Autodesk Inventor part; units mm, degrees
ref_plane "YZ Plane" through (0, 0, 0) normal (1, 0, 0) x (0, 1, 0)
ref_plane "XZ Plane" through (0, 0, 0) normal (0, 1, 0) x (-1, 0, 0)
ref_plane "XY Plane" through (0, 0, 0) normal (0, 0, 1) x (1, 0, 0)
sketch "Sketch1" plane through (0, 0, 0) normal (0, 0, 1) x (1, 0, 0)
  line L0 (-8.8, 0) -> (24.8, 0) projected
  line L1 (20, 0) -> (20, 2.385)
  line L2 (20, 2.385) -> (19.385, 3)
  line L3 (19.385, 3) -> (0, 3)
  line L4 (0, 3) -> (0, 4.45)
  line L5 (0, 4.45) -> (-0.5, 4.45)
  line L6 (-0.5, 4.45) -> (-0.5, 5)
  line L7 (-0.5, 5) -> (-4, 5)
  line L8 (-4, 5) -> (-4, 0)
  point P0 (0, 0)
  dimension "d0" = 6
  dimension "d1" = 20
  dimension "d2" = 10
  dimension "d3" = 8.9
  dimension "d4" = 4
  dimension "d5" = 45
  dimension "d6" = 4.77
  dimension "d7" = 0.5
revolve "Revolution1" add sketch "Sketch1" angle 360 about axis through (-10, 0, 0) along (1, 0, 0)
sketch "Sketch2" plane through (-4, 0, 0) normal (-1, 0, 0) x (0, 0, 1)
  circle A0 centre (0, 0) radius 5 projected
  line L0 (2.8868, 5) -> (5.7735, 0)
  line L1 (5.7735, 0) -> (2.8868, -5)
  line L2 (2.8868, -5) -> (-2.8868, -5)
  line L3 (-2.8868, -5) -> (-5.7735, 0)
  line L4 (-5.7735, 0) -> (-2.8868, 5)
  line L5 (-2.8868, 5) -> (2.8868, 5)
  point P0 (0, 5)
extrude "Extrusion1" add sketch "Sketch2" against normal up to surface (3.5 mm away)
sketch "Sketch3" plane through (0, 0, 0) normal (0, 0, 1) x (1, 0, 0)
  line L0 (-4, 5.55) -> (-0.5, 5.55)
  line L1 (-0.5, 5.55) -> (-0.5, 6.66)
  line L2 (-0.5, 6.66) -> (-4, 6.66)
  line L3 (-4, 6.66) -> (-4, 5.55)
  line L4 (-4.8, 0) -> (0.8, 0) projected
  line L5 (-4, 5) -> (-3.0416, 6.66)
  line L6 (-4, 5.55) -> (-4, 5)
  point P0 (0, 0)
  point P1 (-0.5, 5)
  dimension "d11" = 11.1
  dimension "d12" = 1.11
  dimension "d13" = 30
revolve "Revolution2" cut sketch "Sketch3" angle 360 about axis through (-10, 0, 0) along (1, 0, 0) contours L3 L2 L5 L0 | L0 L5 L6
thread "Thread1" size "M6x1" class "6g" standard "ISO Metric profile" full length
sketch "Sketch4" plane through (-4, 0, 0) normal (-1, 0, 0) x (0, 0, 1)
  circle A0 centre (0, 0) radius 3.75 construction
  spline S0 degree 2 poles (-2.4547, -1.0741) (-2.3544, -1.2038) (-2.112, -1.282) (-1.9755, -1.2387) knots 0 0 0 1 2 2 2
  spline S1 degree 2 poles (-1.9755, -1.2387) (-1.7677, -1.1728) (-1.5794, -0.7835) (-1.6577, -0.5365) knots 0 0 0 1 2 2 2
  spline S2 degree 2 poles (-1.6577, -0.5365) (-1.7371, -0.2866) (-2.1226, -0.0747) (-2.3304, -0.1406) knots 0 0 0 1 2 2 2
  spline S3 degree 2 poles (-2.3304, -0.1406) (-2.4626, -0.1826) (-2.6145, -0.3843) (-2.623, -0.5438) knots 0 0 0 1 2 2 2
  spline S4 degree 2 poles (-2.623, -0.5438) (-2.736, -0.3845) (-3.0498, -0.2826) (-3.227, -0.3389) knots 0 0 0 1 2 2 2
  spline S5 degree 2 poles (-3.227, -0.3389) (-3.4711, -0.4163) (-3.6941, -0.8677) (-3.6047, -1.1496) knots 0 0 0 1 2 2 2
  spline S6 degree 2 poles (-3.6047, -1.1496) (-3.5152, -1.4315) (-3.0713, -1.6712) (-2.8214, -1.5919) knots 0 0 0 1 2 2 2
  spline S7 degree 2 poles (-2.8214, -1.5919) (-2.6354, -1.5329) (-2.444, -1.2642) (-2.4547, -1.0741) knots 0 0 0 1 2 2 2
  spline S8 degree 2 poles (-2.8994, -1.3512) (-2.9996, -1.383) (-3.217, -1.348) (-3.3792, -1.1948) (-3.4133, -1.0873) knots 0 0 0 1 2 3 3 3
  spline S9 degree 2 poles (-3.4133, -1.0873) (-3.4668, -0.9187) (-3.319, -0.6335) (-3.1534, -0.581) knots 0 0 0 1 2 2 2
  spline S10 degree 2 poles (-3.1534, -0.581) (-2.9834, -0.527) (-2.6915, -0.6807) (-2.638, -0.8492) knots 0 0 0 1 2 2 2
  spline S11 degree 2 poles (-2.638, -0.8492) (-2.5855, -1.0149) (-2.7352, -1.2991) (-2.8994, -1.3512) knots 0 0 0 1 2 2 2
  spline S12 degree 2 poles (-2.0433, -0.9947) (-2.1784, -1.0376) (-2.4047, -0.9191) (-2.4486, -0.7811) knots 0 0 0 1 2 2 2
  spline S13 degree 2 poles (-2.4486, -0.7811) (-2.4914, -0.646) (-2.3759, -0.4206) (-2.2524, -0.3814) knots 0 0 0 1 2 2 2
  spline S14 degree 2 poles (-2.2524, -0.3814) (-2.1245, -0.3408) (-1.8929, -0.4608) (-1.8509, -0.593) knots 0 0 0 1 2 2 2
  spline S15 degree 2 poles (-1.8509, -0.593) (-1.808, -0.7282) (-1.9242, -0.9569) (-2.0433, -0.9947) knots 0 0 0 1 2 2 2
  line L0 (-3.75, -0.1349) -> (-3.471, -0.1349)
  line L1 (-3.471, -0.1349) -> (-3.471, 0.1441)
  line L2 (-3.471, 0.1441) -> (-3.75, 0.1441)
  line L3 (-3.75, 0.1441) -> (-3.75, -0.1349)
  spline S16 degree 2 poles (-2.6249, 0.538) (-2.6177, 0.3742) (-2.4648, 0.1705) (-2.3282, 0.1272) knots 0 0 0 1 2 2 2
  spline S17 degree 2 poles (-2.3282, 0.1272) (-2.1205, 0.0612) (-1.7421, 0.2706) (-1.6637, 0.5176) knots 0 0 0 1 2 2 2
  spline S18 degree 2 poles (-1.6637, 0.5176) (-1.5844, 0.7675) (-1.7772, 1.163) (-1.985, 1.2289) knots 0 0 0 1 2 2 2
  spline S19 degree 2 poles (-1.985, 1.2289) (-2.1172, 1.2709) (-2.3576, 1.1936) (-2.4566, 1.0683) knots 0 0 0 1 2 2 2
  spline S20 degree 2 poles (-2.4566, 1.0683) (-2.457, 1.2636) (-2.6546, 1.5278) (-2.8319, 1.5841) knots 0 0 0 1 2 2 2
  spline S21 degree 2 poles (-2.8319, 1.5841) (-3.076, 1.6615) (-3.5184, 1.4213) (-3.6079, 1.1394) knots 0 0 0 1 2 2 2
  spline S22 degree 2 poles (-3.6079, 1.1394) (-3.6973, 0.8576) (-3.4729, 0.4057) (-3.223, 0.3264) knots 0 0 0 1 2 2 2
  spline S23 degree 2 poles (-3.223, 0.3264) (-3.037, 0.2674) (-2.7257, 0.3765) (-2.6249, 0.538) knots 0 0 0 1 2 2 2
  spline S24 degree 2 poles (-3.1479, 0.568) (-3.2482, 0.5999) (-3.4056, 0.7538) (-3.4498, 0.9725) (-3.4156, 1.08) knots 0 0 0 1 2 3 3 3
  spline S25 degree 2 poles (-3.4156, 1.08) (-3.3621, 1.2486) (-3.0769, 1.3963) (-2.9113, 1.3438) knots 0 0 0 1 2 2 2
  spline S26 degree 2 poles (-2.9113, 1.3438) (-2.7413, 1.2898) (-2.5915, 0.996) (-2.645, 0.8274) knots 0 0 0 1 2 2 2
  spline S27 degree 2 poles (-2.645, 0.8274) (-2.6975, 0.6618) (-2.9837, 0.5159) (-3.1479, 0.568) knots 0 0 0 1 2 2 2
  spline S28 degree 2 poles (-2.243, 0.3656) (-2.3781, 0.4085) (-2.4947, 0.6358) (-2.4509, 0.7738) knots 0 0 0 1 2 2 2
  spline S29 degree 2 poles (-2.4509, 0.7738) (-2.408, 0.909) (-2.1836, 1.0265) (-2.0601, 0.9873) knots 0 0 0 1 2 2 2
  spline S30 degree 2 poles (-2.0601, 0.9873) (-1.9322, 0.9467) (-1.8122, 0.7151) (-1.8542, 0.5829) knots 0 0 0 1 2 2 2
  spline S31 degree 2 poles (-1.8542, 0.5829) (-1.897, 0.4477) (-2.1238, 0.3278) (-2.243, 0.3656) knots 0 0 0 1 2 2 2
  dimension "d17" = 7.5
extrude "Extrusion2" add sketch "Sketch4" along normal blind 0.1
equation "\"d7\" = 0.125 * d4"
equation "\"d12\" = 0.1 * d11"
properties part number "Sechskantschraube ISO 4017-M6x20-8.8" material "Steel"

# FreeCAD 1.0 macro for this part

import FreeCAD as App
import Part
import Sketcher
from FreeCAD import Vector
Q = App.Units.Quantity

doc = App.newDocument("Part")
body = doc.addObject("PartDesign::Body", "Body")

# Sketch on XY plane
sketch1 = doc.addObject("Sketcher::SketchObject", "Sketch")
body.addObject(sketch1)
sketch1.AttachmentSupport = (doc.XY_Plane, [""])
sketch1.MapMode = "FlatFace"
sketch1.addGeometry(Part.LineSegment(Vector(-4, 5, 0), Vector(-4, 0, 0)), False)
sketch1.addGeometry(Part.LineSegment(Vector(-4, 0, 0), Vector(20, 0, 0)), False)
sketch1.addGeometry(Part.LineSegment(Vector(20, 0, 0), Vector(20, 2.385, 0)), False)
sketch1.addGeometry(Part.LineSegment(Vector(20, 2.385, 0), Vector(19.385, 3, 0)), False)
sketch1.addGeometry(Part.LineSegment(Vector(19.385, 3, 0), Vector(0, 3, 0)), False)
sketch1.addGeometry(Part.LineSegment(Vector(0, 3, 0), Vector(0, 4.45, 0)), False)
sketch1.addGeometry(Part.LineSegment(Vector(0, 4.45, 0), Vector(-0.5, 4.45, 0)), False)
sketch1.addGeometry(Part.LineSegment(Vector(-0.5, 4.45, 0), Vector(-0.5, 5, 0)), False)
sketch1.addGeometry(Part.LineSegment(Vector(-0.5, 5, 0), Vector(-4, 5, 0)), False)
sketch1.addConstraint(Sketcher.Constraint("Coincident", 0, 2, 1, 1))
sketch1.addConstraint(Sketcher.Constraint("Coincident", 1, 2, 2, 1))
sketch1.addConstraint(Sketcher.Constraint("Coincident", 2, 2, 3, 1))
sketch1.addConstraint(Sketcher.Constraint("Coincident", 3, 2, 4, 1))
sketch1.addConstraint(Sketcher.Constraint("Coincident", 4, 2, 5, 1))
sketch1.addConstraint(Sketcher.Constraint("Coincident", 5, 2, 6, 1))
sketch1.addConstraint(Sketcher.Constraint("Coincident", 6, 2, 7, 1))
sketch1.addConstraint(Sketcher.Constraint("Coincident", 7, 2, 8, 1))
sketch1.addConstraint(Sketcher.Constraint("Coincident", 8, 2, 0, 1))
sketch1.addConstraint(Sketcher.Constraint("Vertical", 0))
sketch1.addConstraint(Sketcher.Constraint("Horizontal", 1))
sketch1.addConstraint(Sketcher.Constraint("Vertical", 2))
sketch1.addConstraint(Sketcher.Constraint("Horizontal", 4))
sketch1.addConstraint(Sketcher.Constraint("Vertical", 5))
sketch1.addConstraint(Sketcher.Constraint("Horizontal", 6))
sketch1.addConstraint(Sketcher.Constraint("Vertical", 7))
sketch1.addConstraint(Sketcher.Constraint("Horizontal", 8))
sketch1.addConstraint(Sketcher.Constraint("PointOnObject", 0, 2, -1))
sketch1.addConstraint(Sketcher.Constraint("PointOnObject", 4, 2, -2))
sketch1.addConstraint(Sketcher.Constraint("DistanceX", 6, 2, 6, 1, 0.5))
sketch1.addConstraint(Sketcher.Constraint("DistanceX", 0, 2, -1, 1, 4.0))
sketch1.addConstraint(Sketcher.Constraint("DistanceX", -1, 1, 1, 2, 20.0))
sketch1.addConstraint(Sketcher.Constraint("DistanceY", 0, 2, 0, 1, 5.0))
sketch1.addConstraint(Sketcher.Constraint("Angle", 3, Q("135 deg")))
sketch1.addConstraint(Sketcher.Constraint("DistanceY", -1, 1, 3, 2, 3.0))
sketch1.addConstraint(Sketcher.Constraint("DistanceY", 5, 1, 5, 2, 1.45))
sketch1.addConstraint(Sketcher.Constraint("DistanceX", 4, 2, 4, 1, 19.385))
revolution = doc.addObject("PartDesign::Revolution", "Revolution")
body.addObject(revolution)
revolution.Profile = sketch1
revolution.ReferenceAxis = (sketch1, ["H_Axis"])
revolution.Angle = 360

# Sketch on YZ plane
sketch2 = doc.addObject("Sketcher::SketchObject", "Sketch001")
body.addObject(sketch2)
sketch2.AttachmentSupport = (doc.YZ_Plane, [""])
sketch2.MapMode = "FlatFace"
sketch2.AttachmentOffset = App.Placement(Vector(0, 0, -4), App.Rotation())
sketch2.addGeometry(Part.LineSegment(Vector(0, 5.7735, 0), Vector(5, 2.8868, 0)), False)
sketch2.addGeometry(Part.LineSegment(Vector(5, 2.8868, 0), Vector(5, -2.8868, 0)), False)
sketch2.addGeometry(Part.LineSegment(Vector(5, -2.8868, 0), Vector(0, -5.7735, 0)), False)
sketch2.addGeometry(Part.LineSegment(Vector(0, -5.7735, 0), Vector(-5, -2.8868, 0)), False)
sketch2.addGeometry(Part.LineSegment(Vector(-5, -2.8868, 0), Vector(-5, 2.8868, 0)), False)
sketch2.addGeometry(Part.LineSegment(Vector(-5, 2.8868, 0), Vector(0, 5.7735, 0)), False)
sketch2.addConstraint(Sketcher.Constraint("Coincident", 0, 2, 1, 1))
sketch2.addConstraint(Sketcher.Constraint("Coincident", 1, 2, 2, 1))
sketch2.addConstraint(Sketcher.Constraint("Coincident", 2, 2, 3, 1))
sketch2.addConstraint(Sketcher.Constraint("Coincident", 3, 2, 4, 1))
sketch2.addConstraint(Sketcher.Constraint("Coincident", 4, 2, 5, 1))
sketch2.addConstraint(Sketcher.Constraint("Coincident", 5, 2, 0, 1))
sketch2.addConstraint(Sketcher.Constraint("Vertical", 1))
sketch2.addConstraint(Sketcher.Constraint("Vertical", 4))
sketch2.addConstraint(Sketcher.Constraint("Symmetric", 0, 2, 3, 2, -1, 1))
sketch2.addConstraint(Sketcher.Constraint("Symmetric", 2, 2, 5, 2, -1, 1))
sketch2.addConstraint(Sketcher.Constraint("PointOnObject", 2, 2, -2))
sketch2.addConstraint(Sketcher.Constraint("Parallel", 2, 5))
sketch2.addConstraint(Sketcher.Constraint("Horizontal", 1, 2, 3, 2))
sketch2.addConstraint(Sketcher.Constraint("Angle", 0, Q("-29.9996 deg")))
sketch2.addConstraint(Sketcher.Constraint("DistanceX", -1, 1, 0, 2, 5.0))
sketch2.addConstraint(Sketcher.Constraint("DistanceY", 1, 2, 1, 1, 5.7736))
pad1 = doc.addObject("PartDesign::Pad", "Pad")
body.addObject(pad1)
pad1.Profile = sketch2
pad1.Length = 3.5

# Sketch on XY plane
sketch3 = doc.addObject("Sketcher::SketchObject", "Sketch002")
body.addObject(sketch3)
sketch3.AttachmentSupport = (doc.XY_Plane, [""])
sketch3.MapMode = "FlatFace"
sketch3.addGeometry(Part.LineSegment(Vector(-4, 6.66, 0), Vector(-4, 5, 0)), False)
sketch3.addGeometry(Part.LineSegment(Vector(-4, 5, 0), Vector(-3.0416, 6.66, 0)), False)
sketch3.addGeometry(Part.LineSegment(Vector(-3.0416, 6.66, 0), Vector(-4, 6.66, 0)), False)
sketch3.addConstraint(Sketcher.Constraint("Coincident", 0, 2, 1, 1))
sketch3.addConstraint(Sketcher.Constraint("Coincident", 1, 2, 2, 1))
sketch3.addConstraint(Sketcher.Constraint("Coincident", 2, 2, 0, 1))
sketch3.addConstraint(Sketcher.Constraint("Vertical", 0))
sketch3.addConstraint(Sketcher.Constraint("Horizontal", 2))
sketch3.addConstraint(Sketcher.Constraint("Angle", 1, Q("60 deg")))
sketch3.addConstraint(Sketcher.Constraint("DistanceX", 0, 2, -1, 1, 4.0))
sketch3.addConstraint(Sketcher.Constraint("DistanceY", -1, 1, 0, 2, 5.0))
sketch3.addConstraint(Sketcher.Constraint("DistanceY", 0, 2, 0, 1, 1.66))
groove = doc.addObject("PartDesign::Groove", "Groove")
body.addObject(groove)
groove.Profile = sketch3
groove.ReferenceAxis = (sketch3, ["H_Axis"])
groove.Angle = 360

# Sketch on YZ plane
sketch4 = doc.addObject("Sketcher::SketchObject", "Sketch003")
body.addObject(sketch4)
sketch4.AttachmentSupport = (doc.YZ_Plane, [""])
sketch4.MapMode = "FlatFace"
sketch4.AttachmentOffset = App.Placement(Vector(0, 0, -4), App.Rotation())
sketch4.addGeometry(Part.BSplineCurve([Vector(-1.5919, -2.8214, 0), Vector(-1.5329, -2.6354, 0), Vector(-1.2642, -2.444, 0), Vector(-1.0741, -2.4547, 0)], [3, 1, 3], [0, 1, 2], False, 2, [1, 1, 1, 1], False), False)
sketch4.addGeometry(Part.BSplineCurve([Vector(-1.0741, -2.4547, 0), Vector(-1.2038, -2.3544, 0), Vector(-1.282, -2.112, 0), Vector(-1.2387, -1.9755, 0)], [3, 1, 3], [0, 1, 2], False, 2, [1, 1, 1, 1], False), False)
sketch4.addGeometry(Part.BSplineCurve([Vector(-1.2387, -1.9755, 0), Vector(-1.1728, -1.7677, 0), Vector(-0.7835, -1.5794, 0), Vector(-0.5365, -1.6577, 0)], [3, 1, 3], [0, 1, 2], False, 2, [1, 1, 1, 1], False), False)
sketch4.addGeometry(Part.BSplineCurve([Vector(-0.5365, -1.6577, 0), Vector(-0.2866, -1.7371, 0), Vector(-0.0747, -2.1226, 0), Vector(-0.1406, -2.3304, 0)], [3, 1, 3], [0, 1, 2], False, 2, [1, 1, 1, 1], False), False)
sketch4.addGeometry(Part.BSplineCurve([Vector(-0.1406, -2.3304, 0), Vector(-0.1826, -2.4626, 0), Vector(-0.3843, -2.6145, 0), Vector(-0.5438, -2.623, 0)], [3, 1, 3], [0, 1, 2], False, 2, [1, 1, 1, 1], False), False)
sketch4.addGeometry(Part.BSplineCurve([Vector(-0.5438, -2.623, 0), Vector(-0.3845, -2.736, 0), Vector(-0.2826, -3.0498, 0), Vector(-0.3389, -3.227, 0)], [3, 1, 3], [0, 1, 2], False, 2, [1, 1, 1, 1], False), False)
sketch4.addGeometry(Part.BSplineCurve([Vector(-0.3389, -3.227, 0), Vector(-0.4163, -3.4711, 0), Vector(-0.8677, -3.6941, 0), Vector(-1.1496, -3.6047, 0)], [3, 1, 3], [0, 1, 2], False, 2, [1, 1, 1, 1], False), False)
sketch4.addGeometry(Part.BSplineCurve([Vector(-1.1496, -3.6047, 0), Vector(-1.4315, -3.5152, 0), Vector(-1.6712, -3.0713, 0), Vector(-1.5919, -2.8214, 0)], [3, 1, 3], [0, 1, 2], False, 2, [1, 1, 1, 1], False), False)
sketch4.addGeometry(Part.BSplineCurve([Vector(-0.8492, -2.638, 0), Vector(-1.0149, -2.5855, 0), Vector(-1.2991, -2.7352, 0), Vector(-1.3512, -2.8994, 0)], [3, 1, 3], [0, 1, 2], False, 2, [1, 1, 1, 1], False), False)
sketch4.addGeometry(Part.BSplineCurve([Vector(-1.3512, -2.8994, 0), Vector(-1.383, -2.9996, 0), Vector(-1.348, -3.217, 0), Vector(-1.1948, -3.3792, 0), Vector(-1.0873, -3.4133, 0)], [3, 1, 1, 3], [0, 1, 2, 3], False, 2, [1, 1, 1, 1, 1], False), False)
sketch4.addGeometry(Part.BSplineCurve([Vector(-1.0873, -3.4133, 0), Vector(-0.9187, -3.4668, 0), Vector(-0.6335, -3.319, 0), Vector(-0.581, -3.1534, 0)], [3, 1, 3], [0, 1, 2], False, 2, [1, 1, 1, 1], False), False)
sketch4.addGeometry(Part.BSplineCurve([Vector(-0.581, -3.1534, 0), Vector(-0.527, -2.9834, 0), Vector(-0.6807, -2.6915, 0), Vector(-0.8492, -2.638, 0)], [3, 1, 3], [0, 1, 2], False, 2, [1, 1, 1, 1], False), False)
sketch4.addGeometry(Part.BSplineCurve([Vector(-0.593, -1.8509, 0), Vector(-0.7282, -1.808, 0), Vector(-0.9569, -1.9242, 0), Vector(-0.9947, -2.0433, 0)], [3, 1, 3], [0, 1, 2], False, 2, [1, 1, 1, 1], False), False)
sketch4.addGeometry(Part.BSplineCurve([Vector(-0.9947, -2.0433, 0), Vector(-1.0376, -2.1784, 0), Vector(-0.9191, -2.4047, 0), Vector(-0.7811, -2.4486, 0)], [3, 1, 3], [0, 1, 2], False, 2, [1, 1, 1, 1], False), False)
sketch4.addGeometry(Part.BSplineCurve([Vector(-0.7811, -2.4486, 0), Vector(-0.646, -2.4914, 0), Vector(-0.4206, -2.3759, 0), Vector(-0.3814, -2.2524, 0)], [3, 1, 3], [0, 1, 2], False, 2, [1, 1, 1, 1], False), False)
sketch4.addGeometry(Part.BSplineCurve([Vector(-0.3814, -2.2524, 0), Vector(-0.3408, -2.1245, 0), Vector(-0.4608, -1.8929, 0), Vector(-0.593, -1.8509, 0)], [3, 1, 3], [0, 1, 2], False, 2, [1, 1, 1, 1], False), False)
sketch4.addGeometry(Part.LineSegment(Vector(0.1441, -3.75, 0), Vector(-0.1349, -3.75, 0)), False)
sketch4.addGeometry(Part.LineSegment(Vector(-0.1349, -3.75, 0), Vector(-0.1349, -3.471, 0)), False)
sketch4.addGeometry(Part.LineSegment(Vector(-0.1349, -3.471, 0), Vector(0.1441, -3.471, 0)), False)
sketch4.addGeometry(Part.LineSegment(Vector(0.1441, -3.471, 0), Vector(0.1441, -3.75, 0)), False)
sketch4.addGeometry(Part.BSplineCurve([Vector(0.3264, -3.223, 0), Vector(0.2674, -3.037, 0), Vector(0.3765, -2.7257, 0), Vector(0.538, -2.6249, 0)], [3, 1, 3], [0, 1, 2], False, 2, [1, 1, 1, 1], False), False)
sketch4.addGeometry(Part.BSplineCurve([Vector(0.538, -2.6249, 0), Vector(0.3742, -2.6177, 0), Vector(0.1705, -2.4648, 0), Vector(0.1272, -2.3282, 0)], [3, 1, 3], [0, 1, 2], False, 2, [1, 1, 1, 1], False), False)
sketch4.addGeometry(Part.BSplineCurve([Vector(0.1272, -2.3282, 0), Vector(0.0612, -2.1205, 0), Vector(0.2706, -1.7421, 0), Vector(0.5176, -1.6637, 0)], [3, 1, 3], [0, 1, 2], False, 2, [1, 1, 1, 1], False), False)
sketch4.addGeometry(Part.BSplineCurve([Vector(0.5176, -1.6637, 0), Vector(0.7675, -1.5844, 0), Vector(1.163, -1.7772, 0), Vector(1.2289, -1.985, 0)], [3, 1, 3], [0, 1, 2], False, 2, [1, 1, 1, 1], False), False)
sketch4.addGeometry(Part.BSplineCurve([Vector(1.2289, -1.985, 0), Vector(1.2709, -2.1172, 0), Vector(1.1936, -2.3576, 0), Vector(1.0683, -2.4566, 0)], [3, 1, 3], [0, 1, 2], False, 2, [1, 1, 1, 1], False), False)
sketch4.addGeometry(Part.BSplineCurve([Vector(1.0683, -2.4566, 0), Vector(1.2636, -2.457, 0), Vector(1.5278, -2.6546, 0), Vector(1.5841, -2.8319, 0)], [3, 1, 3], [0, 1, 2], False, 2, [1, 1, 1, 1], False), False)
sketch4.addGeometry(Part.BSplineCurve([Vector(1.5841, -2.8319, 0), Vector(1.6615, -3.076, 0), Vector(1.4213, -3.5184, 0), Vector(1.1394, -3.6079, 0)], [3, 1, 3], [0, 1, 2], False, 2, [1, 1, 1, 1], False), False)
sketch4.addGeometry(Part.BSplineCurve([Vector(1.1394, -3.6079, 0), Vector(0.8576, -3.6973, 0), Vector(0.4057, -3.4729, 0), Vector(0.3264, -3.223, 0)], [3, 1, 3], [0, 1, 2], False, 2, [1, 1, 1, 1], False), False)
sketch4.addGeometry(Part.BSplineCurve([Vector(0.8274, -2.645, 0), Vector(0.6618, -2.6975, 0), Vector(0.5159, -2.9837, 0), Vector(0.568, -3.1479, 0)], [3, 1, 3], [0, 1, 2], False, 2, [1, 1, 1, 1], False), False)
sketch4.addGeometry(Part.BSplineCurve([Vector(0.568, -3.1479, 0), Vector(0.5999, -3.2482, 0), Vector(0.7538, -3.4056, 0), Vector(0.9725, -3.4498, 0), Vector(1.08, -3.4156, 0)], [3, 1, 1, 3], [0, 1, 2, 3], False, 2, [1, 1, 1, 1, 1], False), False)
sketch4.addGeometry(Part.BSplineCurve([Vector(1.08, -3.4156, 0), Vector(1.2486, -3.3621, 0), Vector(1.3963, -3.0769, 0), Vector(1.3438, -2.9113, 0)], [3, 1, 3], [0, 1, 2], False, 2, [1, 1, 1, 1], False), False)
sketch4.addGeometry(Part.BSplineCurve([Vector(1.3438, -2.9113, 0), Vector(1.2898, -2.7413, 0), Vector(0.996, -2.5915, 0), Vector(0.8274, -2.645, 0)], [3, 1, 3], [0, 1, 2], False, 2, [1, 1, 1, 1], False), False)
sketch4.addGeometry(Part.BSplineCurve([Vector(0.5829, -1.8542, 0), Vector(0.4477, -1.897, 0), Vector(0.3278, -2.1238, 0), Vector(0.3656, -2.243, 0)], [3, 1, 3], [0, 1, 2], False, 2, [1, 1, 1, 1], False), False)
sketch4.addGeometry(Part.BSplineCurve([Vector(0.3656, -2.243, 0), Vector(0.4085, -2.3781, 0), Vector(0.6358, -2.4947, 0), Vector(0.7738, -2.4509, 0)], [3, 1, 3], [0, 1, 2], False, 2, [1, 1, 1, 1], False), False)
sketch4.addGeometry(Part.BSplineCurve([Vector(0.7738, -2.4509, 0), Vector(0.909, -2.408, 0), Vector(1.0265, -2.1836, 0), Vector(0.9873, -2.0601, 0)], [3, 1, 3], [0, 1, 2], False, 2, [1, 1, 1, 1], False), False)
sketch4.addGeometry(Part.BSplineCurve([Vector(0.9873, -2.0601, 0), Vector(0.9467, -1.9322, 0), Vector(0.7151, -1.8122, 0), Vector(0.5829, -1.8542, 0)], [3, 1, 3], [0, 1, 2], False, 2, [1, 1, 1, 1], False), False)
sketch4.addConstraint(Sketcher.Constraint("Block", 0))
sketch4.addConstraint(Sketcher.Constraint("Block", 1))
sketch4.addConstraint(Sketcher.Constraint("Block", 2))
sketch4.addConstraint(Sketcher.Constraint("Block", 3))
sketch4.addConstraint(Sketcher.Constraint("Block", 4))
sketch4.addConstraint(Sketcher.Constraint("Block", 5))
sketch4.addConstraint(Sketcher.Constraint("Block", 6))
sketch4.addConstraint(Sketcher.Constraint("Block", 7))
sketch4.addConstraint(Sketcher.Constraint("Block", 8))
sketch4.addConstraint(Sketcher.Constraint("Block", 9))
sketch4.addConstraint(Sketcher.Constraint("Block", 10))
sketch4.addConstraint(Sketcher.Constraint("Block", 11))
sketch4.addConstraint(Sketcher.Constraint("Block", 12))
sketch4.addConstraint(Sketcher.Constraint("Block", 13))
sketch4.addConstraint(Sketcher.Constraint("Block", 14))
sketch4.addConstraint(Sketcher.Constraint("Block", 15))
sketch4.addConstraint(Sketcher.Constraint("Block", 20))
sketch4.addConstraint(Sketcher.Constraint("Block", 21))
sketch4.addConstraint(Sketcher.Constraint("Block", 22))
sketch4.addConstraint(Sketcher.Constraint("Block", 23))
sketch4.addConstraint(Sketcher.Constraint("Block", 24))
sketch4.addConstraint(Sketcher.Constraint("Block", 25))
sketch4.addConstraint(Sketcher.Constraint("Block", 26))
sketch4.addConstraint(Sketcher.Constraint("Block", 27))
sketch4.addConstraint(Sketcher.Constraint("Block", 28))
sketch4.addConstraint(Sketcher.Constraint("Block", 29))
sketch4.addConstraint(Sketcher.Constraint("Block", 30))
sketch4.addConstraint(Sketcher.Constraint("Block", 31))
sketch4.addConstraint(Sketcher.Constraint("Block", 32))
sketch4.addConstraint(Sketcher.Constraint("Block", 33))
sketch4.addConstraint(Sketcher.Constraint("Block", 34))
sketch4.addConstraint(Sketcher.Constraint("Block", 35))
sketch4.addConstraint(Sketcher.Constraint("Coincident", 16, 2, 17, 1))
sketch4.addConstraint(Sketcher.Constraint("Coincident", 17, 2, 18, 1))
sketch4.addConstraint(Sketcher.Constraint("Coincident", 18, 2, 19, 1))
sketch4.addConstraint(Sketcher.Constraint("Coincident", 19, 2, 16, 1))
sketch4.addConstraint(Sketcher.Constraint("Horizontal", 16))
sketch4.addConstraint(Sketcher.Constraint("Vertical", 17))
sketch4.addConstraint(Sketcher.Constraint("Horizontal", 18))
sketch4.addConstraint(Sketcher.Constraint("Vertical", 19))
sketch4.addConstraint(Sketcher.Constraint("Equal", 18, 17))
sketch4.addConstraint(Sketcher.Constraint("DistanceX", 16, 2, 16, 1, 0.279))
sketch4.addConstraint(Sketcher.Constraint("DistanceY", 16, 2, -1, 1, 3.75))
sketch4.addConstraint(Sketcher.Constraint("DistanceX", 16, 2, -1, 1, 0.135))
pad2 = doc.addObject("PartDesign::Pad", "Pad001")
body.addObject(pad2)
pad2.Profile = sketch4
pad2.Length = 0.1
pad2.Reversed = True

doc.recompute()
